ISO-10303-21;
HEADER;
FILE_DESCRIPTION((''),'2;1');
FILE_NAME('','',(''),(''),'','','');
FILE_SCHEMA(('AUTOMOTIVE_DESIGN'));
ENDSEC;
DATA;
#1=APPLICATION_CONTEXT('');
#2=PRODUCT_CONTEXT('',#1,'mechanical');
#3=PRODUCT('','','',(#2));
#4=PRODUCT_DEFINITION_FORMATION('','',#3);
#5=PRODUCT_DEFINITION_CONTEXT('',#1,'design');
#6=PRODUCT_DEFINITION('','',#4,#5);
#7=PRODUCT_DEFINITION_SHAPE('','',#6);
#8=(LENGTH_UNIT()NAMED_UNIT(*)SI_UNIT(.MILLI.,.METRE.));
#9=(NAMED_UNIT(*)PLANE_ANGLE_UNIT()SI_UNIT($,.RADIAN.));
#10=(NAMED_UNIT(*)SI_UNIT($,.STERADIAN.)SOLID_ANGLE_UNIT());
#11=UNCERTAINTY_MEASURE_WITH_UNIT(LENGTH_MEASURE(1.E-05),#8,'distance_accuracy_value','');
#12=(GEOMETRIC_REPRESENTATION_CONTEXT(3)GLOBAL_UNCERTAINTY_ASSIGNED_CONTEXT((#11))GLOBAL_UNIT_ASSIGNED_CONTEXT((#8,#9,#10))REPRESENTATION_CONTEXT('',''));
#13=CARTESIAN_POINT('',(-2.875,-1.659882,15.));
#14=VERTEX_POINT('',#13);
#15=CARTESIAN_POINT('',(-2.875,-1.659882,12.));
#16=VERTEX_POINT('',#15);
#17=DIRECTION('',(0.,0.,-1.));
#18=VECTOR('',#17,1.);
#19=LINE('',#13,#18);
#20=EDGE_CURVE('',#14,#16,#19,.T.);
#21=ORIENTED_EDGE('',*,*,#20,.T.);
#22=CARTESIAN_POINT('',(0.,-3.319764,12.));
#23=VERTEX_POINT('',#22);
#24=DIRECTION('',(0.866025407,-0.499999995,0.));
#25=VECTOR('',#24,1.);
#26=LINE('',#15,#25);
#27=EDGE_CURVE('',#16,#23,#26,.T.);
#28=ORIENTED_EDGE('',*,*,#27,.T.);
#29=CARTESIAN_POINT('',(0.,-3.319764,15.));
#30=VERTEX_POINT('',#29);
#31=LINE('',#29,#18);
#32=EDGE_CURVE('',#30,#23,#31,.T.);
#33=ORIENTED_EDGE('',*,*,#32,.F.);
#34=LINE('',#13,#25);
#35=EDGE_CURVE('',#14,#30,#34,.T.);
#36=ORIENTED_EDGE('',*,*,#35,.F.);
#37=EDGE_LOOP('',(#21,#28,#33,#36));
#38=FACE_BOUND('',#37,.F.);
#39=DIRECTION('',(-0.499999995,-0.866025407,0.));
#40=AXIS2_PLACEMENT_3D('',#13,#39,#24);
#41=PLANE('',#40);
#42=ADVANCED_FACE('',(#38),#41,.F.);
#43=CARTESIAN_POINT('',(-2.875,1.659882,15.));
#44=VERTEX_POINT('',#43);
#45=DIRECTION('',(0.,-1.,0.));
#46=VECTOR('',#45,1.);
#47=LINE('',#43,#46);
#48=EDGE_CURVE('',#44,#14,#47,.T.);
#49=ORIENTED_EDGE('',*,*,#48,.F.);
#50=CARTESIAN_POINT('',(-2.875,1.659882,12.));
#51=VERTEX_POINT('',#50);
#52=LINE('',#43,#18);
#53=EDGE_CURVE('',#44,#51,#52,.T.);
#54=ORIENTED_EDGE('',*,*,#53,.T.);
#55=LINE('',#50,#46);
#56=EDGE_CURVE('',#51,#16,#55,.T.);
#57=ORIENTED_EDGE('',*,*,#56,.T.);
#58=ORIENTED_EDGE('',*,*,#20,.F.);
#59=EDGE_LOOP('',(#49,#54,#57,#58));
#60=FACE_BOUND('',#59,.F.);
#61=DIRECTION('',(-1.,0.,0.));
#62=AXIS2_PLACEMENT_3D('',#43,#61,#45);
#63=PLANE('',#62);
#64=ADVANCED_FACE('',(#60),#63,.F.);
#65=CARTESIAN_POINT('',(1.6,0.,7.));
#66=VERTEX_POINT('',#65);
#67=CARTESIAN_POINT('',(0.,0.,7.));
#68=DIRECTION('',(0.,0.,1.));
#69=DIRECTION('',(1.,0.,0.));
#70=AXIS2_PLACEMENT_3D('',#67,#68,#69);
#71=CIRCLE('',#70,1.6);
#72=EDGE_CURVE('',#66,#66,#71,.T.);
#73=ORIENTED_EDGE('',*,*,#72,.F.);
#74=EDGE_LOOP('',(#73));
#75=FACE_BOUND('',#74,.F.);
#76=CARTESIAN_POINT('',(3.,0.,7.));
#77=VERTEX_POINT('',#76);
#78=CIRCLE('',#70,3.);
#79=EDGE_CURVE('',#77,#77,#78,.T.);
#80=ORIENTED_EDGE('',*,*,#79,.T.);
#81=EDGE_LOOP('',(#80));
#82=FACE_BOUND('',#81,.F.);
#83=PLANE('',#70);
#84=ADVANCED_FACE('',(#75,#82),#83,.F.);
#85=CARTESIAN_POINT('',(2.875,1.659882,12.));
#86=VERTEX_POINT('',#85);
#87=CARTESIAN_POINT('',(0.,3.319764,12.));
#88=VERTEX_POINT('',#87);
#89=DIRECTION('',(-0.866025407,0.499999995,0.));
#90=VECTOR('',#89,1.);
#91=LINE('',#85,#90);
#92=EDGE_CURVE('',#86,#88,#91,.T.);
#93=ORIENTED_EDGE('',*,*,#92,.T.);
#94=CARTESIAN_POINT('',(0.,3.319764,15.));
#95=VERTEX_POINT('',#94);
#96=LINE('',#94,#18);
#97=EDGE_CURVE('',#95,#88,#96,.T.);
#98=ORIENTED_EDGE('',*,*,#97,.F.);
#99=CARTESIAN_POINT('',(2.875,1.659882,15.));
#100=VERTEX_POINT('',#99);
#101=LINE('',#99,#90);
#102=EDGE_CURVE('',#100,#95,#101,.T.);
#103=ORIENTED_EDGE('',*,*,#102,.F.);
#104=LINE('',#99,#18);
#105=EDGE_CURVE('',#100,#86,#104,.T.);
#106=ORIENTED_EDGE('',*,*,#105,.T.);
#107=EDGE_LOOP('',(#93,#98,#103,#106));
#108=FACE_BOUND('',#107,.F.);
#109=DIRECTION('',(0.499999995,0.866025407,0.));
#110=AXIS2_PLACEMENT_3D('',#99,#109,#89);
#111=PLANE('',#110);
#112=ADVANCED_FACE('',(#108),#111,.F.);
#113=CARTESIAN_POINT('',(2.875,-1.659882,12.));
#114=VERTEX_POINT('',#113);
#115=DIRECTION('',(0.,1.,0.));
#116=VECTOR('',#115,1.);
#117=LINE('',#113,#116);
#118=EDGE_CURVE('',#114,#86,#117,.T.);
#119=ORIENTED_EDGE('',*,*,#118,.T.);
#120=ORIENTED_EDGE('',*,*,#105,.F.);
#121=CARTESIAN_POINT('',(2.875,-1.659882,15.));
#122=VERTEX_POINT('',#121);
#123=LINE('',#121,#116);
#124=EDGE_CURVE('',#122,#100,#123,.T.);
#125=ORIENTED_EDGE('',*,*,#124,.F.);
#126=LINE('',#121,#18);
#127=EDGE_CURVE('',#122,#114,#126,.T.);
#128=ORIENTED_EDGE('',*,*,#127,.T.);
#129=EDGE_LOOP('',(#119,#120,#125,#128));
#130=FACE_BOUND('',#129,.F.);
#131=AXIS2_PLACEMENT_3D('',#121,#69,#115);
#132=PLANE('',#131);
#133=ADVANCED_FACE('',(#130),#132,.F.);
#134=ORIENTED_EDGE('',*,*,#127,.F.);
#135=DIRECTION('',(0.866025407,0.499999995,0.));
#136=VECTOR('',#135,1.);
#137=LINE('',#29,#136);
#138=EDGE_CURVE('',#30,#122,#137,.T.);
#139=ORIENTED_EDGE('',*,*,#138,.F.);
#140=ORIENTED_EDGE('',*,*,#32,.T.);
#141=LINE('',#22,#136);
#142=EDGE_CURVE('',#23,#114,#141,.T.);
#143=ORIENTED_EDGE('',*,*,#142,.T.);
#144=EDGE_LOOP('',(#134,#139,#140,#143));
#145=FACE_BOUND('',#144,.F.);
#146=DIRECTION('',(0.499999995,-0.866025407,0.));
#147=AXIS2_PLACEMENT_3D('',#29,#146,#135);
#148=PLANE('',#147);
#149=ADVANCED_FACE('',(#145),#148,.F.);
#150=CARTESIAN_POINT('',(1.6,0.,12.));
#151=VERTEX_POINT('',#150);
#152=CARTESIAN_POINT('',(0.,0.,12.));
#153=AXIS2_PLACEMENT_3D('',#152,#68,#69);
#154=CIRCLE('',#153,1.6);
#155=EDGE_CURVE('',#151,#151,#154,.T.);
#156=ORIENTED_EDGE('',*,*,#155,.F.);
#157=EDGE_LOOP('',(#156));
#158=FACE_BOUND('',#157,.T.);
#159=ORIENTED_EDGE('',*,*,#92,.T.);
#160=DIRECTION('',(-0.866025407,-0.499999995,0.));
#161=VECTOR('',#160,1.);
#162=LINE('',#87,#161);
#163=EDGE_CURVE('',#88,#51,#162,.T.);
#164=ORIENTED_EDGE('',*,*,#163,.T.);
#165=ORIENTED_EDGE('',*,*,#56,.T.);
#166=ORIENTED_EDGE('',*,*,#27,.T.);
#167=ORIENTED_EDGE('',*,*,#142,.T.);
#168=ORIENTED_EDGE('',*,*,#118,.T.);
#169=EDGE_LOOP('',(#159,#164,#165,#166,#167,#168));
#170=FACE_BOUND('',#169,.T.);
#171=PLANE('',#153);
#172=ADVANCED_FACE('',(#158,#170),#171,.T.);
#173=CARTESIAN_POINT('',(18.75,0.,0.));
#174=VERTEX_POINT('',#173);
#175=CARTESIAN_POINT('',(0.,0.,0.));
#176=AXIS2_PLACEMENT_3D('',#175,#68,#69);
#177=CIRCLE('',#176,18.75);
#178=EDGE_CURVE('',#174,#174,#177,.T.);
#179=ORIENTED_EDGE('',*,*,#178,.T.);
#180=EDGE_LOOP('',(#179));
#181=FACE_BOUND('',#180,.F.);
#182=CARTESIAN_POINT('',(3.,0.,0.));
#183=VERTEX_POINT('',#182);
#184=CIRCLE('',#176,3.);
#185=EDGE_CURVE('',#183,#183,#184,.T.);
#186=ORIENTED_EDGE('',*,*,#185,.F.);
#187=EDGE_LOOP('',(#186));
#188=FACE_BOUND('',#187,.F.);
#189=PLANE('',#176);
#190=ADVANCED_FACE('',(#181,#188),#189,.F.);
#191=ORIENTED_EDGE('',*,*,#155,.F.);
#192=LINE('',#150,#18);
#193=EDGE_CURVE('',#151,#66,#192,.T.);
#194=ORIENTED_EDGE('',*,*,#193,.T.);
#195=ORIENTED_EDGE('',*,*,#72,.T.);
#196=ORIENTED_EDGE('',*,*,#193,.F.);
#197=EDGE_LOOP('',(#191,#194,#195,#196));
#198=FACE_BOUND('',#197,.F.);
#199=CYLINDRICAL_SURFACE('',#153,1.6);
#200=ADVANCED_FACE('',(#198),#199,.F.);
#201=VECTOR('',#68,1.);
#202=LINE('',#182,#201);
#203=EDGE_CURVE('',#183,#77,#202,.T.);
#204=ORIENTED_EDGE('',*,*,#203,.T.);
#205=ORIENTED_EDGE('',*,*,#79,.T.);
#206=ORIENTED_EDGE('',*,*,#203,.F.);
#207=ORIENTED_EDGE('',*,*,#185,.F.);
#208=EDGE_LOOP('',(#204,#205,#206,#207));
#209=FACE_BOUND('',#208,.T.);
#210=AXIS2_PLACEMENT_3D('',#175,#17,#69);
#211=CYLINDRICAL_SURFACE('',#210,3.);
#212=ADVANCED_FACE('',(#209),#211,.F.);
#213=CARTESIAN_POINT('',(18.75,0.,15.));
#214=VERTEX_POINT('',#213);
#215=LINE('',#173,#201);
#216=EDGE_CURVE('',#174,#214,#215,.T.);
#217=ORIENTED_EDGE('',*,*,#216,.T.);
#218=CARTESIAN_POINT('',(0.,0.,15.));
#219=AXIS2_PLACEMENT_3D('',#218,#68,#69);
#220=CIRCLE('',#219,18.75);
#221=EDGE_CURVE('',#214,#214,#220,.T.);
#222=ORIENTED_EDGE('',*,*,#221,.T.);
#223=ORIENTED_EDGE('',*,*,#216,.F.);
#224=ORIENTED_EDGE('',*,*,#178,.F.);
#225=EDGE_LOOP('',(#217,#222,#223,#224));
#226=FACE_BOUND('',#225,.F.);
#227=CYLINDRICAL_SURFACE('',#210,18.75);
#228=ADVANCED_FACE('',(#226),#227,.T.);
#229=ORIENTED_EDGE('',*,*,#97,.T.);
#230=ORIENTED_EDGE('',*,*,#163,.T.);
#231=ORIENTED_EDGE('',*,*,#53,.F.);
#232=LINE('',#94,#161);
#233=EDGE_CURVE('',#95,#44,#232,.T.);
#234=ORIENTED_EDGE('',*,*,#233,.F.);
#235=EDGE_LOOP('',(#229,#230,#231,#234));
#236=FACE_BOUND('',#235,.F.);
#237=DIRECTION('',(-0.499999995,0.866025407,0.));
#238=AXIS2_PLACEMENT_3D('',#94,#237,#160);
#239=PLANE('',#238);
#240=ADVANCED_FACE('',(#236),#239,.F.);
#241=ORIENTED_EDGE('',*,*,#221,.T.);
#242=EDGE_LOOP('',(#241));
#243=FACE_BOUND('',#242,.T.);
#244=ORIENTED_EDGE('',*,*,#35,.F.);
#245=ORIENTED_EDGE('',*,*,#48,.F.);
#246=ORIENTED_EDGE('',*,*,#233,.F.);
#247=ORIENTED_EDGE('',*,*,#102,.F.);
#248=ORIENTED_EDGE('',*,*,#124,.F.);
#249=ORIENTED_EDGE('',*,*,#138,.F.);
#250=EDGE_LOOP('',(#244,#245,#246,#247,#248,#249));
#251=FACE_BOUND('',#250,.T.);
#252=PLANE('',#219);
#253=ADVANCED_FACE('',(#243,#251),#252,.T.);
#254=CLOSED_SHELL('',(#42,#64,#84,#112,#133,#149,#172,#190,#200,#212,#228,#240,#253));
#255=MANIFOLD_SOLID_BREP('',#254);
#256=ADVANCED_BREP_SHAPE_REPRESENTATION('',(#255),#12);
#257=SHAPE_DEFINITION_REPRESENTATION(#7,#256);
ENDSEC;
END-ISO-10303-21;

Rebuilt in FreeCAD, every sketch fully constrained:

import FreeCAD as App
import Part
import Sketcher

V = App.Vector
Q = App.Units.Quantity

doc = App.newDocument("Part")
body = doc.addObject("PartDesign::Body", "Body")

sketch1 = body.newObject("Sketcher::SketchObject", "Sketch")
sketch1.AttachmentSupport = (doc.getObject("XY_Plane"), [""])
sketch1.MapMode = "FlatFace"
sketch1.addGeometry(Part.Circle(V(0, 0, 0), V(0, 0, 1), 19), False)
sketch1.addConstraint([
    Sketcher.Constraint("Coincident", 0, 3, -1, 1),
    Sketcher.Constraint("Diameter", 0, 37.5),
])
pad1 = body.newObject("PartDesign::Pad", "Pad")
pad1.Profile = sketch1
pad1.Length = 15

sketch2 = body.newObject("Sketcher::SketchObject", "Sketch001")
sketch2.AttachmentSupport = (doc.getObject("XY_Plane"), [""])
sketch2.MapMode = "FlatFace"
sketch2.AttachmentOffset = App.Placement(V(0, 0, 15), App.Rotation())
sketch2.addGeometry([
    Part.LineSegment(V(2.9, -1.7, 0), V(2.9, 1.7, 0)),
    Part.LineSegment(V(2.9, 1.7, 0), V(0, 3.3, 0)),
    Part.LineSegment(V(0, 3.3, 0), V(-2.9, 1.7, 0)),
    Part.LineSegment(V(-2.9, 1.7, 0), V(-2.9, -1.7, 0)),
    Part.LineSegment(V(-2.9, -1.7, 0), V(0, -3.3, 0)),
    Part.LineSegment(V(0, -3.3, 0), V(2.9, -1.7, 0)),
], False)
sketch2.addConstraint([
    Sketcher.Constraint("Coincident", 0, 2, 1, 1),
    Sketcher.Constraint("Coincident", 1, 2, 2, 1),
    Sketcher.Constraint("Coincident", 2, 2, 3, 1),
    Sketcher.Constraint("Coincident", 3, 2, 4, 1),
    Sketcher.Constraint("Coincident", 4, 2, 5, 1),
    Sketcher.Constraint("Coincident", 5, 2, 0, 1),
    Sketcher.Constraint("Vertical", 0),
    Sketcher.Constraint("Vertical", 3),
    Sketcher.Constraint("Symmetric", 0, 2, 3, 2, -1, 1),
    Sketcher.Constraint("Symmetric", 1, 2, 4, 2, -1, 1),
    Sketcher.Constraint("PointOnObject", 1, 2, -2),
    Sketcher.Constraint("Parallel", 2, 5),
    Sketcher.Constraint("Horizontal", 0, 2, 2, 2),
    Sketcher.Constraint("Angle", 1, Q("150 deg")),
    Sketcher.Constraint("DistanceX", 2, 2, 0, 2, 5.75),
    Sketcher.Constraint("DistanceY", 0, 1, 0, 2, 3.319764),
])
pocket1 = body.newObject("PartDesign::Pocket", "Pocket")
pocket1.Profile = sketch2
pocket1.Length = 3

sketch3 = body.newObject("Sketcher::SketchObject", "Sketch002")
sketch3.AttachmentSupport = (doc.getObject("XY_Plane"), [""])
sketch3.MapMode = "FlatFace"
sketch3.AttachmentOffset = App.Placement(V(0, 0, 12), App.Rotation())
sketch3.addGeometry(Part.Circle(V(0, 0, 0), V(0, 0, 1), 1.6), False)
sketch3.addConstraint([
    Sketcher.Constraint("Coincident", 0, 3, -1, 1),
    Sketcher.Constraint("Diameter", 0, 3.2),
])
pocket2 = body.newObject("PartDesign::Pocket", "Pocket001")
pocket2.Profile = sketch3
pocket2.Length = 25

sketch4 = body.newObject("Sketcher::SketchObject", "Sketch003")
sketch4.AttachmentSupport = (doc.getObject("XY_Plane"), [""])
sketch4.MapMode = "FlatFace"
sketch4.addGeometry(Part.Circle(V(0, 0, 0), V(0, 0, 1), 3), False)
sketch4.addConstraint([
    Sketcher.Constraint("Coincident", 0, 3, -1, 1),
    Sketcher.Constraint("Diameter", 0, 6.0),
])
pocket3 = body.newObject("PartDesign::Pocket", "Pocket002")
pocket3.Profile = sketch4
pocket3.Length = 7
pocket3.Reversed = True

doc.recompute()
